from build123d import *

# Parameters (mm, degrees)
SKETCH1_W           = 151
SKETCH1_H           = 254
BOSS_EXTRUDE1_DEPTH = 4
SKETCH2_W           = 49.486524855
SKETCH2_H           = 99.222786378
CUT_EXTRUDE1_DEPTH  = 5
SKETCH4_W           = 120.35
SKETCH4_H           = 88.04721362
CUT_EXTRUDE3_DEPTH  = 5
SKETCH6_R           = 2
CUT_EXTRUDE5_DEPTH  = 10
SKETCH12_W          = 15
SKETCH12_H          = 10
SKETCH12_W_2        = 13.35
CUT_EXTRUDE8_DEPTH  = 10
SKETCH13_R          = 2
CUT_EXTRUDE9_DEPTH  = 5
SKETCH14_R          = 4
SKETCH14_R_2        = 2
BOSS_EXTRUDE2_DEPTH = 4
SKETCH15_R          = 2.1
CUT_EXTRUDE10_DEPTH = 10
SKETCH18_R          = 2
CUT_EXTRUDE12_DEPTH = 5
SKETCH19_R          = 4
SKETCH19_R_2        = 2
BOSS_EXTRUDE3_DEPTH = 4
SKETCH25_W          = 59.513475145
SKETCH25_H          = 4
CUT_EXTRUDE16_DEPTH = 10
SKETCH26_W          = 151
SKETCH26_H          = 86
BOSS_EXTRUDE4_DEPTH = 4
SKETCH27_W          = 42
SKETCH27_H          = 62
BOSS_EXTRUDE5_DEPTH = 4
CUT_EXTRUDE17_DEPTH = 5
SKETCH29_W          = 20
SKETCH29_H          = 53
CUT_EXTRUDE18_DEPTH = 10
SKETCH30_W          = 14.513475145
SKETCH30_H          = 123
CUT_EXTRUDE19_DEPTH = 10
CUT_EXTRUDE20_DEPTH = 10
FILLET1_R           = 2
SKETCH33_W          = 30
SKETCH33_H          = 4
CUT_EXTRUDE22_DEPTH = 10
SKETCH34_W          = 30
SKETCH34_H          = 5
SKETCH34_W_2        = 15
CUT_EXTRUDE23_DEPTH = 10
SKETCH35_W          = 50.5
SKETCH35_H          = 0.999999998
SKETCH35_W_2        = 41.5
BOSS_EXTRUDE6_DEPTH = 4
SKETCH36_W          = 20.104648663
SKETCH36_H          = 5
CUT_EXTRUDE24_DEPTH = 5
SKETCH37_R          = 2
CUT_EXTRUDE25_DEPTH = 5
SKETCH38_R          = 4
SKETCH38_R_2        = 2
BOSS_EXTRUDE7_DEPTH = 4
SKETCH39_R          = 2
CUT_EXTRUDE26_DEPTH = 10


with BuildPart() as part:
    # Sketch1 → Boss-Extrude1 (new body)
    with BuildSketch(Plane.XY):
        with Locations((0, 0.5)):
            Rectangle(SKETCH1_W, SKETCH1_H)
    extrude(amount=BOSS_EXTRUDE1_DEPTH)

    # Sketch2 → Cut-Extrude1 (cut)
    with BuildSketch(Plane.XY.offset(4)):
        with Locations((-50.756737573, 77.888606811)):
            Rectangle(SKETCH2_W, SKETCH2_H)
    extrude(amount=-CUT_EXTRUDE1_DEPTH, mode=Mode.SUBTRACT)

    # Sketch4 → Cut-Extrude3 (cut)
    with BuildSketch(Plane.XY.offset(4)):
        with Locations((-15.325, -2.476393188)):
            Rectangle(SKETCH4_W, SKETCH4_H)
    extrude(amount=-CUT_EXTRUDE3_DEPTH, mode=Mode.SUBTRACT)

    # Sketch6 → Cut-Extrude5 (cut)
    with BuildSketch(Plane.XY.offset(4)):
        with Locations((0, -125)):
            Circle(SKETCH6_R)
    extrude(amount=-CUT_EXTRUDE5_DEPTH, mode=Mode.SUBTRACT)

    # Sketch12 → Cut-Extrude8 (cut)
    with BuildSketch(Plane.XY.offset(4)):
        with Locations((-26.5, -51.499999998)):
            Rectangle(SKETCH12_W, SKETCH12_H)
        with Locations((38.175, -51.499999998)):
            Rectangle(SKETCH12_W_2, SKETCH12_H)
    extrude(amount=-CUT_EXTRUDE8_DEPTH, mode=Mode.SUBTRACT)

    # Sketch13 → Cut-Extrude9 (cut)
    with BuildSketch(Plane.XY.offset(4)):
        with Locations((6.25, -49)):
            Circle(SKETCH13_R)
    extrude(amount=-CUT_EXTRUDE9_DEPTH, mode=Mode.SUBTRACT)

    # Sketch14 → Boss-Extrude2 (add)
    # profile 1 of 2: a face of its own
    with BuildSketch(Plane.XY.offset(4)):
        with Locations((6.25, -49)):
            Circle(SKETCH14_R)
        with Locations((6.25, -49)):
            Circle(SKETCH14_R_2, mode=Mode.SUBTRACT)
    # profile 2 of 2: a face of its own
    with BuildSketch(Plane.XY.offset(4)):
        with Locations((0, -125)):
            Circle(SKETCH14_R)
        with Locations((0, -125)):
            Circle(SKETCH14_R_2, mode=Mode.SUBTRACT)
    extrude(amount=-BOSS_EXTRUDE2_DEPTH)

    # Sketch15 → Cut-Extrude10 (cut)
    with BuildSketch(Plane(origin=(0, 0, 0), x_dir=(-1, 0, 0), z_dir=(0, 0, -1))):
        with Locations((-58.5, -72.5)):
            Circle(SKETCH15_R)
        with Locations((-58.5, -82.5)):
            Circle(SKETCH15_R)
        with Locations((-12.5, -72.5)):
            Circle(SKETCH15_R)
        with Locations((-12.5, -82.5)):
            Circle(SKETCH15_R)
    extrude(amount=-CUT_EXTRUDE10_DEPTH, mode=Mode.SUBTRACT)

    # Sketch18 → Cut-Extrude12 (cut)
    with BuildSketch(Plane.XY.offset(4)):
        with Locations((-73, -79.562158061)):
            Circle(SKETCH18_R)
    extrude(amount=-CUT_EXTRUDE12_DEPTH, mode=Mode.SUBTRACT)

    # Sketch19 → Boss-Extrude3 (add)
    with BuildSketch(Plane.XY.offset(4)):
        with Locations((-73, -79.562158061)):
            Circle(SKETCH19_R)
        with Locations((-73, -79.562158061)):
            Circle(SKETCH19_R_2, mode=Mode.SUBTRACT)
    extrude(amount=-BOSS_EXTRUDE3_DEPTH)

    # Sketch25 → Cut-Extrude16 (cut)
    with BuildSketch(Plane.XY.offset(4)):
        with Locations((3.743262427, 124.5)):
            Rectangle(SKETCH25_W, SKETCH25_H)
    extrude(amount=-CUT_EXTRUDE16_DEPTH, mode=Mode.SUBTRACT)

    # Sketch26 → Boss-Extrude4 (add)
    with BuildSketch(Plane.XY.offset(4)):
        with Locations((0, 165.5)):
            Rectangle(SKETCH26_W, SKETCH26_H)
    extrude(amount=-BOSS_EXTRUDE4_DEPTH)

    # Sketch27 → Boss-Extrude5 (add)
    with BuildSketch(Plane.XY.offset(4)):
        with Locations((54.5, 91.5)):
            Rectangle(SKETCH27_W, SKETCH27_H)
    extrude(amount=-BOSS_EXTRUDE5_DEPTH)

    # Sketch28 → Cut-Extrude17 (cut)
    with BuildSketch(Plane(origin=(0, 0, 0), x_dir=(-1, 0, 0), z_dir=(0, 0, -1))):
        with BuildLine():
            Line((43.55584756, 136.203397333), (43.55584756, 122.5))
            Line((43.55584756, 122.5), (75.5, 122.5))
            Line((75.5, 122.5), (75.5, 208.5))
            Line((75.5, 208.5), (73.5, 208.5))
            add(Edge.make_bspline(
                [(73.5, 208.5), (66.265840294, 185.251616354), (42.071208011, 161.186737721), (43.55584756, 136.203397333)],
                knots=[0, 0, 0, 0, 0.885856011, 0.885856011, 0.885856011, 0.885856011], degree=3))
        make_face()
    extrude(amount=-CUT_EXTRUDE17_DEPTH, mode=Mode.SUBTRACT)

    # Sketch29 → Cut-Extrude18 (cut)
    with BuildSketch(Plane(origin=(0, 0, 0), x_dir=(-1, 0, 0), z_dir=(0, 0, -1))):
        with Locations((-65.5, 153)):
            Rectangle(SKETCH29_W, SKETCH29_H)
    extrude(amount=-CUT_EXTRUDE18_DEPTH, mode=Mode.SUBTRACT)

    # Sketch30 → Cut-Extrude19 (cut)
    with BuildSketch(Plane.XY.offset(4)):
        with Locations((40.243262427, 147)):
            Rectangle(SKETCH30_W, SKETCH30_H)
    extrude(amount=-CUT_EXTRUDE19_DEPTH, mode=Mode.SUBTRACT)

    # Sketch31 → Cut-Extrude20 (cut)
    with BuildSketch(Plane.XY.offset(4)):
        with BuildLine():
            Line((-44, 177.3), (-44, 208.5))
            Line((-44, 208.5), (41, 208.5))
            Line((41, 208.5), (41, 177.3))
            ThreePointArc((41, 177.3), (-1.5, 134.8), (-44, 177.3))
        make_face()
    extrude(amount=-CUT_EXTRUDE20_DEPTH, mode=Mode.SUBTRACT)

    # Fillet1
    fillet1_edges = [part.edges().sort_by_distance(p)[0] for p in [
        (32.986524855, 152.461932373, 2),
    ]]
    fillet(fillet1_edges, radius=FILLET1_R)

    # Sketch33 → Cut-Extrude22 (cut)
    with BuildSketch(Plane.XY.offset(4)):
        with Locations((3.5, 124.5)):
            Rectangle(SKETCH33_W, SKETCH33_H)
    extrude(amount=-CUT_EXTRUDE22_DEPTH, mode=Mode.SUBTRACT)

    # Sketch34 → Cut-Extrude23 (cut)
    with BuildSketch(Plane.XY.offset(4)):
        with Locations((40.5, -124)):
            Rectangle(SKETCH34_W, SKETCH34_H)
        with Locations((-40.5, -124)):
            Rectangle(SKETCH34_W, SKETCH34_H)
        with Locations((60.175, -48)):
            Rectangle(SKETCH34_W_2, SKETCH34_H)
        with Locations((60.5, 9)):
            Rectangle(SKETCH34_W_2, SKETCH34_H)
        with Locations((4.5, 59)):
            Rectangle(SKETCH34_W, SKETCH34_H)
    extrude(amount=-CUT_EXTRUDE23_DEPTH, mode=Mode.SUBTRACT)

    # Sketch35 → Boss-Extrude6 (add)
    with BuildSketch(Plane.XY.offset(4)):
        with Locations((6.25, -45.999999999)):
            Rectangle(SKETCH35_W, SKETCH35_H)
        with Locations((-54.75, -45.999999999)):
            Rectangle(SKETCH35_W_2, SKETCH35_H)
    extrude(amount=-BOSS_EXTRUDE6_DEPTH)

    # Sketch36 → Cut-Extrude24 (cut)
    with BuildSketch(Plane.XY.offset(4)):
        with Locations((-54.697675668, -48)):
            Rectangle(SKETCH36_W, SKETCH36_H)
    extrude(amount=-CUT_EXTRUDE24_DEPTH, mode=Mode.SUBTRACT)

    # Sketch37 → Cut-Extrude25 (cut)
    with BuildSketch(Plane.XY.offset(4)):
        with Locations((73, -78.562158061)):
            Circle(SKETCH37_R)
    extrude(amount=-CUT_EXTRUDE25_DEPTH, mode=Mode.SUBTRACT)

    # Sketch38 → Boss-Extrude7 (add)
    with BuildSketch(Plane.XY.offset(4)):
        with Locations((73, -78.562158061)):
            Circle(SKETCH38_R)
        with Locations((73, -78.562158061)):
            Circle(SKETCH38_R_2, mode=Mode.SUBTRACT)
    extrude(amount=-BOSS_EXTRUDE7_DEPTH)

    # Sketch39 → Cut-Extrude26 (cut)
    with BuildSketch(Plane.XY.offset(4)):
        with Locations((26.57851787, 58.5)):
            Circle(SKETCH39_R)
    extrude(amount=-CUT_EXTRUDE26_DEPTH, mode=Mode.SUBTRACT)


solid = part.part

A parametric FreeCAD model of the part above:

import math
import FreeCAD as App
import Part
import Sketcher

V = App.Vector


def edges_at(feature, points):
    """Names of the edges that pass closest to the given points."""
    edges = feature.Shape.Edges
    near = lambda p: min(range(len(edges)), key=lambda i: edges[i].distToShape(Part.Vertex(*p))[0])
    return sorted({f"Edge{near(p) + 1}" for p in points})

doc = App.newDocument("Part")
body = doc.addObject("PartDesign::Body", "Body")

# Sketch on XY plane
sketch1 = body.newObject("Sketcher::SketchObject", "Sketch")
sketch1.AttachmentSupport = (doc.getObject("XY_Plane"), [""])
sketch1.MapMode = "FlatFace"
sketch1.addGeometry(Part.LineSegment(V(-75.5, 127.5, 0), V(-75.5, -126.5, 0)), False)
sketch1.addGeometry(Part.LineSegment(V(-75.5, -126.5, 0), V(75.5, -126.5, 0)), False)
sketch1.addGeometry(Part.LineSegment(V(75.5, -126.5, 0), V(75.5, 127.5, 0)), False)
sketch1.addGeometry(Part.LineSegment(V(75.5, 127.5, 0), V(-75.5, 127.5, 0)), False)
sketch1.addConstraint(Sketcher.Constraint("Coincident", 0, 2, 1, 1))
sketch1.addConstraint(Sketcher.Constraint("Coincident", 1, 2, 2, 1))
sketch1.addConstraint(Sketcher.Constraint("Coincident", 2, 2, 3, 1))
sketch1.addConstraint(Sketcher.Constraint("Coincident", 3, 2, 0, 1))
sketch1.addConstraint(Sketcher.Constraint("Vertical", 0))
sketch1.addConstraint(Sketcher.Constraint("Horizontal", 1))
sketch1.addConstraint(Sketcher.Constraint("Vertical", 2))
sketch1.addConstraint(Sketcher.Constraint("Horizontal", 3))
sketch1.addConstraint(Sketcher.Constraint("DistanceX", 1, 1, 1, 2, 151.0))
sketch1.addConstraint(Sketcher.Constraint("DistanceY", 0, 2, 0, 1, 254.0))
sketch1.addConstraint(Sketcher.Constraint("DistanceX", 0, 2, -1, 1, 75.5))
sketch1.addConstraint(Sketcher.Constraint("DistanceY", 0, 2, -1, 1, 126.5))
pad1 = body.newObject("PartDesign::Pad", "Pad")
pad1.Profile = sketch1
pad1.Length = 4

# Sketch on XY plane
sketch2 = body.newObject("Sketcher::SketchObject", "Sketch001")
sketch2.AttachmentSupport = (doc.getObject("XY_Plane"), [""])
sketch2.MapMode = "FlatFace"
sketch2.AttachmentOffset = App.Placement(V(0, 0, 4), App.Rotation())
sketch2.addGeometry(Part.LineSegment(V(-75.5, 127.5, 0), V(-75.5, 28.277214, 0)), False)
sketch2.addGeometry(Part.LineSegment(V(-75.5, 28.277214, 0), V(-26.013475, 28.277214, 0)), False)
sketch2.addGeometry(Part.LineSegment(V(-26.013475, 28.277214, 0), V(-26.013475, 127.5, 0)), False)
sketch2.addGeometry(Part.LineSegment(V(-26.013475, 127.5, 0), V(-75.5, 127.5, 0)), False)
sketch2.addConstraint(Sketcher.Constraint("Coincident", 0, 2, 1, 1))
sketch2.addConstraint(Sketcher.Constraint("Coincident", 1, 2, 2, 1))
sketch2.addConstraint(Sketcher.Constraint("Coincident", 2, 2, 3, 1))
sketch2.addConstraint(Sketcher.Constraint("Coincident", 3, 2, 0, 1))
sketch2.addConstraint(Sketcher.Constraint("Vertical", 0))
sketch2.addConstraint(Sketcher.Constraint("Horizontal", 1))
sketch2.addConstraint(Sketcher.Constraint("Vertical", 2))
sketch2.addConstraint(Sketcher.Constraint("Horizontal", 3))
sketch2.addConstraint(Sketcher.Constraint("DistanceX", 0, 2, -1, 1, 75.5))
sketch2.addConstraint(Sketcher.Constraint("DistanceY", -1, 1, 2, 2, 127.5))
sketch2.addConstraint(Sketcher.Constraint("DistanceX", 1, 1, 1, 2, 49.486525))
sketch2.addConstraint(Sketcher.Constraint("DistanceY", 0, 2, 0, 1, 99.222786))
pocket1 = body.newObject("PartDesign::Pocket", "Pocket")
pocket1.Profile = sketch2
pocket1.Length = 5

# Sketch on XY plane
sketch3 = body.newObject("Sketcher::SketchObject", "Sketch002")
sketch3.AttachmentSupport = (doc.getObject("XY_Plane"), [""])
sketch3.MapMode = "FlatFace"
sketch3.AttachmentOffset = App.Placement(V(0, 0, 4), App.Rotation())
sketch3.addGeometry(Part.LineSegment(V(-75.5, 41.547214, 0), V(-75.5, -46.5, 0)), False)
sketch3.addGeometry(Part.LineSegment(V(-75.5, -46.5, 0), V(44.85, -46.5, 0)), False)
sketch3.addGeometry(Part.LineSegment(V(44.85, -46.5, 0), V(44.85, 41.547214, 0)), False)
sketch3.addGeometry(Part.LineSegment(V(44.85, 41.547214, 0), V(-75.5, 41.547214, 0)), False)
sketch3.addConstraint(Sketcher.Constraint("Coincident", 0, 2, 1, 1))
sketch3.addConstraint(Sketcher.Constraint("Coincident", 1, 2, 2, 1))
sketch3.addConstraint(Sketcher.Constraint("Coincident", 2, 2, 3, 1))
sketch3.addConstraint(Sketcher.Constraint("Coincident", 3, 2, 0, 1))
sketch3.addConstraint(Sketcher.Constraint("Vertical", 0))
sketch3.addConstraint(Sketcher.Constraint("Horizontal", 1))
sketch3.addConstraint(Sketcher.Constraint("Vertical", 2))
sketch3.addConstraint(Sketcher.Constraint("Horizontal", 3))
sketch3.addConstraint(Sketcher.Constraint("DistanceX", 1, 1, 1, 2, 120.35))
sketch3.addConstraint(Sketcher.Constraint("DistanceX", 0, 2, -1, 1, 75.5))
sketch3.addConstraint(Sketcher.Constraint("DistanceY", 0, 2, -1, 1, 46.5))
sketch3.addConstraint(Sketcher.Constraint("DistanceY", 0, 2, 0, 1, 88.047214))
pocket2 = body.newObject("PartDesign::Pocket", "Pocket001")
pocket2.Profile = sketch3
pocket2.Length = 5

# Sketch on XY plane
sketch4 = body.newObject("Sketcher::SketchObject", "Sketch003")
sketch4.AttachmentSupport = (doc.getObject("XY_Plane"), [""])
sketch4.MapMode = "FlatFace"
sketch4.AttachmentOffset = App.Placement(V(0, 0, 4), App.Rotation())
sketch4.addGeometry(Part.Circle(V(0, -125, 0), V(0, 0, 1), 2), False)
sketch4.addConstraint(Sketcher.Constraint("PointOnObject", 0, 3, -2))
sketch4.addConstraint(Sketcher.Constraint("Diameter", 0, 4.0))
sketch4.addConstraint(Sketcher.Constraint("DistanceY", 0, 3, -1, 1, 125.0))
pocket3 = body.newObject("PartDesign::Pocket", "Pocket002")
pocket3.Profile = sketch4
pocket3.Length = 10

# Sketch on XY plane
sketch5 = body.newObject("Sketcher::SketchObject", "Sketch004")
sketch5.AttachmentSupport = (doc.getObject("XY_Plane"), [""])
sketch5.MapMode = "FlatFace"
sketch5.AttachmentOffset = App.Placement(V(0, 0, 4), App.Rotation())
sketch5.addGeometry(Part.LineSegment(V(-34, -46.5, 0), V(-34, -56.5, 0)), False)
sketch5.addGeometry(Part.LineSegment(V(-34, -56.5, 0), V(-19, -56.5, 0)), False)
sketch5.addGeometry(Part.LineSegment(V(-19, -56.5, 0), V(-19, -46.5, 0)), False)
sketch5.addGeometry(Part.LineSegment(V(-19, -46.5, 0), V(-34, -46.5, 0)), False)
sketch5.addGeometry(Part.LineSegment(V(31.5, -46.5, 0), V(31.5, -56.5, 0)), False)
sketch5.addGeometry(Part.LineSegment(V(31.5, -56.5, 0), V(44.85, -56.5, 0)), False)
sketch5.addGeometry(Part.LineSegment(V(44.85, -56.5, 0), V(44.85, -46.5, 0)), False)
sketch5.addGeometry(Part.LineSegment(V(44.85, -46.5, 0), V(31.5, -46.5, 0)), False)
sketch5.addConstraint(Sketcher.Constraint("Coincident", 0, 2, 1, 1))
sketch5.addConstraint(Sketcher.Constraint("Coincident", 1, 2, 2, 1))
sketch5.addConstraint(Sketcher.Constraint("Coincident", 2, 2, 3, 1))
sketch5.addConstraint(Sketcher.Constraint("Coincident", 3, 2, 0, 1))
sketch5.addConstraint(Sketcher.Constraint("Coincident", 4, 2, 5, 1))
sketch5.addConstraint(Sketcher.Constraint("Coincident", 5, 2, 6, 1))
sketch5.addConstraint(Sketcher.Constraint("Coincident", 6, 2, 7, 1))
sketch5.addConstraint(Sketcher.Constraint("Coincident", 7, 2, 4, 1))
sketch5.addConstraint(Sketcher.Constraint("Vertical", 0))
sketch5.addConstraint(Sketcher.Constraint("Horizontal", 1))
sketch5.addConstraint(Sketcher.Constraint("Vertical", 2))
sketch5.addConstraint(Sketcher.Constraint("Horizontal", 3))
sketch5.addConstraint(Sketcher.Constraint("Vertical", 4))
sketch5.addConstraint(Sketcher.Constraint("Horizontal", 5))
sketch5.addConstraint(Sketcher.Constraint("Vertical", 6))
sketch5.addConstraint(Sketcher.Constraint("Horizontal", 7))
sketch5.addConstraint(Sketcher.Constraint("Horizontal", 1, 2, 4, 2))
sketch5.addConstraint(Sketcher.Constraint("Horizontal", 3, 2, 6, 2))
sketch5.addConstraint(Sketcher.Constraint("DistanceX", 1, 1, 1, 2, 15.0))
sketch5.addConstraint(Sketcher.Constraint("DistanceY", 0, 2, 0, 1, 10.0))
sketch5.addConstraint(Sketcher.Constraint("DistanceX", 0, 2, -1, 1, 34.0))
sketch5.addConstraint(Sketcher.Constraint("DistanceX", 5, 1, 5, 2, 13.35))
sketch5.addConstraint(Sketcher.Constraint("DistanceY", 0, 2, -1, 1, 56.5))
sketch5.addConstraint(Sketcher.Constraint("DistanceX", -1, 1, 4, 2, 31.5))
pocket4 = body.newObject("PartDesign::Pocket", "Pocket003")
pocket4.Profile = sketch5
pocket4.Length = 10

# Sketch on XY plane
sketch6 = body.newObject("Sketcher::SketchObject", "Sketch005")
sketch6.AttachmentSupport = (doc.getObject("XY_Plane"), [""])
sketch6.MapMode = "FlatFace"
sketch6.AttachmentOffset = App.Placement(V(0, 0, 4), App.Rotation())
sketch6.addGeometry(Part.Circle(V(6.25, -49, 0), V(0, 0, 1), 2), False)
sketch6.addConstraint(Sketcher.Constraint("Diameter", 0, 4.0))
sketch6.addConstraint(Sketcher.Constraint("DistanceY", 0, 3, -1, 1, 49.0))
sketch6.addConstraint(Sketcher.Constraint("DistanceX", -1, 1, 0, 3, 6.25))
pocket5 = body.newObject("PartDesign::Pocket", "Pocket004")
pocket5.Profile = sketch6
pocket5.Length = 5

# Sketch on XY plane
sketch7 = body.newObject("Sketcher::SketchObject", "Sketch006")
sketch7.AttachmentSupport = (doc.getObject("XY_Plane"), [""])
sketch7.MapMode = "FlatFace"
sketch7.AttachmentOffset = App.Placement(V(0, 0, 4), App.Rotation())
sketch7.addGeometry(Part.Circle(V(6.25, -49, 0), V(0, 0, 1), 4), False)
sketch7.addGeometry(Part.Circle(V(6.25, -49, 0), V(0, 0, 1), 2), False)
sketch7.addGeometry(Part.Circle(V(0, -125, 0), V(0, 0, 1), 4), False)
sketch7.addGeometry(Part.Circle(V(0, -125, 0), V(0, 0, 1), 2), False)
sketch7.addConstraint(Sketcher.Constraint("Coincident", 1, 3, 0, 3))
sketch7.addConstraint(Sketcher.Constraint("Coincident", 3, 3, 2, 3))
sketch7.addConstraint(Sketcher.Constraint("Equal", 0, 2))
sketch7.addConstraint(Sketcher.Constraint("Equal", 1, 3))
sketch7.addConstraint(Sketcher.Constraint("PointOnObject", 2, 3, -2))
sketch7.addConstraint(Sketcher.Constraint("Diameter", 0, 8.0))
sketch7.addConstraint(Sketcher.Constraint("Diameter", 1, 4.0))
sketch7.addConstraint(Sketcher.Constraint("DistanceY", 0, 3, -1, 1, 49.0))
sketch7.addConstraint(Sketcher.Constraint("DistanceY", 2, 3, -1, 1, 125.0))
sketch7.addConstraint(Sketcher.Constraint("DistanceX", -1, 1, 0, 3, 6.25))
pad2 = body.newObject("PartDesign::Pad", "Pad001")
pad2.Profile = sketch7
pad2.Length = 4
pad2.Reversed = True

# Sketch on XY plane
sketch8 = body.newObject("Sketcher::SketchObject", "Sketch007")
sketch8.AttachmentSupport = (doc.getObject("XY_Plane"), [""])
sketch8.MapMode = "FlatFace"
sketch8.addGeometry(Part.Circle(V(58.5, -72.5, 0), V(0, 0, 1), 2.1), False)
sketch8.addGeometry(Part.Circle(V(58.5, -82.5, 0), V(0, 0, 1), 2.1), False)
sketch8.addGeometry(Part.Circle(V(12.5, -72.5, 0), V(0, 0, 1), 2.1), False)
sketch8.addGeometry(Part.Circle(V(12.5, -82.5, 0), V(0, 0, 1), 2.1), False)
sketch8.addConstraint(Sketcher.Constraint("Equal", 0, 1))
sketch8.addConstraint(Sketcher.Constraint("Equal", 1, 2))
sketch8.addConstraint(Sketcher.Constraint("Equal", 2, 3))
sketch8.addConstraint(Sketcher.Constraint("Horizontal", 0, 3, 2, 3))
sketch8.addConstraint(Sketcher.Constraint("Horizontal", 1, 3, 3, 3))
sketch8.addConstraint(Sketcher.Constraint("Vertical", 0, 3, 1, 3))
sketch8.addConstraint(Sketcher.Constraint("Vertical", 2, 3, 3, 3))
sketch8.addConstraint(Sketcher.Constraint("Diameter", 0, 4.2))
sketch8.addConstraint(Sketcher.Constraint("DistanceY", 1, 3, 0, 3, 10.0))
sketch8.addConstraint(Sketcher.Constraint("DistanceX", 2, 3, 0, 3, 46.0))
sketch8.addConstraint(Sketcher.Constraint("DistanceX", -1, 1, 0, 3, 58.5))
sketch8.addConstraint(Sketcher.Constraint("DistanceY", 0, 3, -1, 1, 72.5))
pocket6 = body.newObject("PartDesign::Pocket", "Pocket005")
pocket6.Profile = sketch8
pocket6.Length = 10
pocket6.Reversed = True

# Sketch on XY plane
sketch9 = body.newObject("Sketcher::SketchObject", "Sketch008")
sketch9.AttachmentSupport = (doc.getObject("XY_Plane"), [""])
sketch9.MapMode = "FlatFace"
sketch9.AttachmentOffset = App.Placement(V(0, 0, 4), App.Rotation())
sketch9.addGeometry(Part.Circle(V(-73, -79.562158, 0), V(0, 0, 1), 2), False)
sketch9.addConstraint(Sketcher.Constraint("Diameter", 0, 4.0))
sketch9.addConstraint(Sketcher.Constraint("DistanceX", 0, 3, -1, 1, 73.0))
sketch9.addConstraint(Sketcher.Constraint("DistanceY", 0, 3, -1, 1, 79.562158))
pocket7 = body.newObject("PartDesign::Pocket", "Pocket006")
pocket7.Profile = sketch9
pocket7.Length = 5

# Sketch on XY plane
sketch10 = body.newObject("Sketcher::SketchObject", "Sketch009")
sketch10.AttachmentSupport = (doc.getObject("XY_Plane"), [""])
sketch10.MapMode = "FlatFace"
sketch10.AttachmentOffset = App.Placement(V(0, 0, 4), App.Rotation())
sketch10.addGeometry(Part.Circle(V(-73, -79.562158, 0), V(0, 0, 1), 4), False)
sketch10.addGeometry(Part.Circle(V(-73, -79.562158, 0), V(0, 0, 1), 2), False)
sketch10.addConstraint(Sketcher.Constraint("Coincident", 1, 3, 0, 3))
sketch10.addConstraint(Sketcher.Constraint("Diameter", 0, 8.0))
sketch10.addConstraint(Sketcher.Constraint("Diameter", 1, 4.0))
sketch10.addConstraint(Sketcher.Constraint("DistanceX", 0, 3, -1, 1, 73.0))
sketch10.addConstraint(Sketcher.Constraint("DistanceY", 0, 3, -1, 1, 79.562158))
pad3 = body.newObject("PartDesign::Pad", "Pad002")
pad3.Profile = sketch10
pad3.Length = 4
pad3.Reversed = True

# Sketch on XY plane
sketch11 = body.newObject("Sketcher::SketchObject", "Sketch010")
sketch11.AttachmentSupport = (doc.getObject("XY_Plane"), [""])
sketch11.MapMode = "FlatFace"
sketch11.AttachmentOffset = App.Placement(V(0, 0, 4), App.Rotation())
sketch11.addGeometry(Part.LineSegment(V(-26.013475, 126.5, 0), V(-26.013475, 122.5, 0)), False)
sketch11.addGeometry(Part.LineSegment(V(-26.013475, 122.5, 0), V(33.5, 122.5, 0)), False)
sketch11.addGeometry(Part.LineSegment(V(33.5, 122.5, 0), V(33.5, 126.5, 0)), False)
sketch11.addGeometry(Part.LineSegment(V(33.5, 126.5, 0), V(-26.013475, 126.5, 0)), False)
sketch11.addConstraint(Sketcher.Constraint("Coincident", 0, 2, 1, 1))
sketch11.addConstraint(Sketcher.Constraint("Coincident", 1, 2, 2, 1))
sketch11.addConstraint(Sketcher.Constraint("Coincident", 2, 2, 3, 1))
sketch11.addConstraint(Sketcher.Constraint("Coincident", 3, 2, 0, 1))
sketch11.addConstraint(Sketcher.Constraint("Vertical", 0))
sketch11.addConstraint(Sketcher.Constraint("Horizontal", 1))
sketch11.addConstraint(Sketcher.Constraint("Vertical", 2))
sketch11.addConstraint(Sketcher.Constraint("Horizontal", 3))
sketch11.addConstraint(Sketcher.Constraint("DistanceY", 0, 2, 0, 1, 4.0))
sketch11.addConstraint(Sketcher.Constraint("DistanceY", -1, 1, 0, 2, 122.5))
sketch11.addConstraint(Sketcher.Constraint("DistanceX", -1, 1, 1, 2, 33.5))
sketch11.addConstraint(Sketcher.Constraint("DistanceX", 1, 1, 1, 2, 59.513475))
pocket8 = body.newObject("PartDesign::Pocket", "Pocket007")
pocket8.Profile = sketch11
pocket8.Length = 10

# Sketch on XY plane
sketch12 = body.newObject("Sketcher::SketchObject", "Sketch011")
sketch12.AttachmentSupport = (doc.getObject("XY_Plane"), [""])
sketch12.MapMode = "FlatFace"
sketch12.AttachmentOffset = App.Placement(V(0, 0, 4), App.Rotation())
sketch12.addGeometry(Part.LineSegment(V(-75.5, 208.5, 0), V(-75.5, 122.5, 0)), False)
sketch12.addGeometry(Part.LineSegment(V(-75.5, 122.5, 0), V(75.5, 122.5, 0)), False)
sketch12.addGeometry(Part.LineSegment(V(75.5, 122.5, 0), V(75.5, 208.5, 0)), False)
sketch12.addGeometry(Part.LineSegment(V(75.5, 208.5, 0), V(-75.5, 208.5, 0)), False)
sketch12.addConstraint(Sketcher.Constraint("Coincident", 0, 2, 1, 1))
sketch12.addConstraint(Sketcher.Constraint("Coincident", 1, 2, 2, 1))
sketch12.addConstraint(Sketcher.Constraint("Coincident", 2, 2, 3, 1))
sketch12.addConstraint(Sketcher.Constraint("Coincident", 3, 2, 0, 1))
sketch12.addConstraint(Sketcher.Constraint("Vertical", 0))
sketch12.addConstraint(Sketcher.Constraint("Horizontal", 1))
sketch12.addConstraint(Sketcher.Constraint("Vertical", 2))
sketch12.addConstraint(Sketcher.Constraint("Horizontal", 3))
sketch12.addConstraint(Sketcher.Constraint("DistanceX", 1, 1, 1, 2, 151.0))
sketch12.addConstraint(Sketcher.Constraint("DistanceY", 0, 2, 0, 1, 86.0))
sketch12.addConstraint(Sketcher.Constraint("DistanceX", 0, 2, -1, 1, 75.5))
sketch12.addConstraint(Sketcher.Constraint("DistanceY", -1, 1, 0, 2, 122.5))
pad4 = body.newObject("PartDesign::Pad", "Pad003")
pad4.Profile = sketch12
pad4.Length = 4
pad4.Reversed = True

# Sketch on XY plane
sketch13 = body.newObject("Sketcher::SketchObject", "Sketch012")
sketch13.AttachmentSupport = (doc.getObject("XY_Plane"), [""])
sketch13.MapMode = "FlatFace"
sketch13.AttachmentOffset = App.Placement(V(0, 0, 4), App.Rotation())
sketch13.addGeometry(Part.LineSegment(V(33.5, 122.5, 0), V(33.5, 60.5, 0)), False)
sketch13.addGeometry(Part.LineSegment(V(33.5, 60.5, 0), V(75.5, 60.5, 0)), False)
sketch13.addGeometry(Part.LineSegment(V(75.5, 60.5, 0), V(75.5, 122.5, 0)), False)
sketch13.addGeometry(Part.LineSegment(V(75.5, 122.5, 0), V(33.5, 122.5, 0)), False)
sketch13.addConstraint(Sketcher.Constraint("Coincident", 0, 2, 1, 1))
sketch13.addConstraint(Sketcher.Constraint("Coincident", 1, 2, 2, 1))
sketch13.addConstraint(Sketcher.Constraint("Coincident", 2, 2, 3, 1))
sketch13.addConstraint(Sketcher.Constraint("Coincident", 3, 2, 0, 1))
sketch13.addConstraint(Sketcher.Constraint("Vertical", 0))
sketch13.addConstraint(Sketcher.Constraint("Horizontal", 1))
sketch13.addConstraint(Sketcher.Constraint("Vertical", 2))
sketch13.addConstraint(Sketcher.Constraint("Horizontal", 3))
sketch13.addConstraint(Sketcher.Constraint("DistanceX", 1, 1, 1, 2, 42.0))
sketch13.addConstraint(Sketcher.Constraint("DistanceY", 0, 2, 0, 1, 62.0))
sketch13.addConstraint(Sketcher.Constraint("DistanceX", -1, 1, 0, 2, 33.5))
sketch13.addConstraint(Sketcher.Constraint("DistanceY", -1, 1, 0, 2, 60.5))
pad5 = body.newObject("PartDesign::Pad", "Pad004")
pad5.Profile = sketch13
pad5.Length = 4
pad5.Reversed = True

# Sketch on XY plane
sketch14 = body.newObject("Sketcher::SketchObject", "Sketch013")
sketch14.AttachmentSupport = (doc.getObject("XY_Plane"), [""])
sketch14.MapMode = "FlatFace"
sketch14.addGeometry(Part.LineSegment(V(-43.555848, 136.203397, 0), V(-43.555848, 122.5, 0)), False)
sketch14.addGeometry(Part.LineSegment(V(-43.555848, 122.5, 0), V(-75.5, 122.5, 0)), False)
sketch14.addGeometry(Part.LineSegment(V(-75.5, 122.5, 0), V(-75.5, 208.5, 0)), False)
sketch14.addGeometry(Part.LineSegment(V(-75.5, 208.5, 0), V(-73.5, 208.5, 0)), False)
sketch14.addGeometry(Part.BSplineCurve([V(-73.5, 208.5, 0), V(-66.26584, 185.251616, 0), V(-42.071208, 161.186738, 0), V(-43.555848, 136.203397, 0)], [4, 4], [0, 0.885856011], False, 3, [1, 1, 1, 1], False), False)
sketch14.addConstraint(Sketcher.Constraint("Block", 4))
sketch14.addConstraint(Sketcher.Constraint("Coincident", 0, 2, 1, 1))
sketch14.addConstraint(Sketcher.Constraint("Coincident", 1, 2, 2, 1))
sketch14.addConstraint(Sketcher.Constraint("Coincident", 2, 2, 3, 1))
sketch14.addConstraint(Sketcher.Constraint("Coincident", 3, 2, 4, 1))
sketch14.addConstraint(Sketcher.Constraint("Coincident", 4, 2, 0, 1))
sketch14.addConstraint(Sketcher.Constraint("Vertical", 0))
sketch14.addConstraint(Sketcher.Constraint("Horizontal", 1))
sketch14.addConstraint(Sketcher.Constraint("Vertical", 2))
sketch14.addConstraint(Sketcher.Constraint("Horizontal", 3))
sketch14.addConstraint(Sketcher.Constraint("DistanceX", 3, 1, 3, 2, 2.0))
sketch14.addConstraint(Sketcher.Constraint("DistanceY", 2, 1, 2, 2, 86.0))
pocket9 = body.newObject("PartDesign::Pocket", "Pocket008")
pocket9.Profile = sketch14
pocket9.Length = 5
pocket9.Reversed = True

# Sketch on XY plane
sketch15 = body.newObject("Sketcher::SketchObject", "Sketch014")
sketch15.AttachmentSupport = (doc.getObject("XY_Plane"), [""])
sketch15.MapMode = "FlatFace"
sketch15.addGeometry(Part.LineSegment(V(75.5, 179.5, 0), V(75.5, 126.5, 0)), False)
sketch15.addGeometry(Part.LineSegment(V(75.5, 126.5, 0), V(55.5, 126.5, 0)), False)
sketch15.addGeometry(Part.LineSegment(V(55.5, 126.5, 0), V(55.5, 179.5, 0)), False)
sketch15.addGeometry(Part.LineSegment(V(55.5, 179.5, 0), V(75.5, 179.5, 0)), False)
sketch15.addConstraint(Sketcher.Constraint("Coincident", 0, 2, 1, 1))
sketch15.addConstraint(Sketcher.Constraint("Coincident", 1, 2, 2, 1))
sketch15.addConstraint(Sketcher.Constraint("Coincident", 2, 2, 3, 1))
sketch15.addConstraint(Sketcher.Constraint("Coincident", 3, 2, 0, 1))
sketch15.addConstraint(Sketcher.Constraint("Vertical", 0))
sketch15.addConstraint(Sketcher.Constraint("Horizontal", 1))
sketch15.addConstraint(Sketcher.Constraint("Vertical", 2))
sketch15.addConstraint(Sketcher.Constraint("Horizontal", 3))
sketch15.addConstraint(Sketcher.Constraint("DistanceX", 1, 2, 1, 1, 20.0))
sketch15.addConstraint(Sketcher.Constraint("DistanceY", 0, 2, 0, 1, 53.0))
sketch15.addConstraint(Sketcher.Constraint("DistanceX", -1, 1, 0, 2, 75.5))
sketch15.addConstraint(Sketcher.Constraint("DistanceY", -1, 1, 0, 2, 126.5))
pocket10 = body.newObject("PartDesign::Pocket", "Pocket009")
pocket10.Profile = sketch15
pocket10.Length = 10
pocket10.Reversed = True

# Sketch on XY plane
sketch16 = body.newObject("Sketcher::SketchObject", "Sketch015")
sketch16.AttachmentSupport = (doc.getObject("XY_Plane"), [""])
sketch16.MapMode = "FlatFace"
sketch16.AttachmentOffset = App.Placement(V(0, 0, 4), App.Rotation())
sketch16.addGeometry(Part.LineSegment(V(32.986525, 208.5, 0), V(32.986525, 85.5, 0)), False)
sketch16.addGeometry(Part.LineSegment(V(32.986525, 85.5, 0), V(47.5, 85.5, 0)), False)
sketch16.addGeometry(Part.LineSegment(V(47.5, 85.5, 0), V(47.5, 208.5, 0)), False)
sketch16.addGeometry(Part.LineSegment(V(47.5, 208.5, 0), V(32.986525, 208.5, 0)), False)
sketch16.addConstraint(Sketcher.Constraint("Coincident", 0, 2, 1, 1))
sketch16.addConstraint(Sketcher.Constraint("Coincident", 1, 2, 2, 1))
sketch16.addConstraint(Sketcher.Constraint("Coincident", 2, 2, 3, 1))
sketch16.addConstraint(Sketcher.Constraint("Coincident", 3, 2, 0, 1))
sketch16.addConstraint(Sketcher.Constraint("Vertical", 0))
sketch16.addConstraint(Sketcher.Constraint("Horizontal", 1))
sketch16.addConstraint(Sketcher.Constraint("Vertical", 2))
sketch16.addConstraint(Sketcher.Constraint("Horizontal", 3))
sketch16.addConstraint(Sketcher.Constraint("DistanceY", 0, 2, 0, 1, 123.0))
sketch16.addConstraint(Sketcher.Constraint("DistanceY", -1, 1, 0, 2, 85.5))
sketch16.addConstraint(Sketcher.Constraint("DistanceX", -1, 1, 1, 2, 47.5))
sketch16.addConstraint(Sketcher.Constraint("DistanceX", 1, 1, 1, 2, 14.513475))
pocket11 = body.newObject("PartDesign::Pocket", "Pocket010")
pocket11.Profile = sketch16
pocket11.Length = 10

# Sketch on XY plane
sketch17 = body.newObject("Sketcher::SketchObject", "Sketch016")
sketch17.AttachmentSupport = (doc.getObject("XY_Plane"), [""])
sketch17.MapMode = "FlatFace"
sketch17.AttachmentOffset = App.Placement(V(0, 0, 4), App.Rotation())
sketch17.addGeometry(Part.LineSegment(V(-44, 208.5, 0), V(-44, 177.3, 0)), False)
sketch17.addGeometry(Part.ArcOfCircle(Part.Circle(V(-1.5, 177.3, 0), V(0, 0, 1), 42.5), math.radians(180), math.radians(360)), False)
sketch17.addGeometry(Part.LineSegment(V(41, 177.3, 0), V(41, 208.5, 0)), False)
sketch17.addGeometry(Part.LineSegment(V(41, 208.5, 0), V(-44, 208.5, 0)), False)
sketch17.addConstraint(Sketcher.Constraint("Tangent", 0, 2, 1, 1))
sketch17.addConstraint(Sketcher.Constraint("Tangent", 1, 2, 2, 1))
sketch17.addConstraint(Sketcher.Constraint("Coincident", 2, 2, 3, 1))
sketch17.addConstraint(Sketcher.Constraint("Coincident", 3, 2, 0, 1))
sketch17.addConstraint(Sketcher.Constraint("Vertical", 0))
sketch17.addConstraint(Sketcher.Constraint("Vertical", 2))
sketch17.addConstraint(Sketcher.Constraint("Horizontal", 3))
sketch17.addConstraint(Sketcher.Constraint("Radius", 1, 42.5))
sketch17.addConstraint(Sketcher.Constraint("DistanceY", 0, 2, 0, 1, 31.2))
sketch17.addConstraint(Sketcher.Constraint("DistanceX", 0, 2, -1, 1, 44.0))
sketch17.addConstraint(Sketcher.Constraint("DistanceY", -1, 1, 1, 3, 177.3))
pocket12 = body.newObject("PartDesign::Pocket", "Pocket011")
pocket12.Profile = sketch17
pocket12.Length = 10
doc.recompute()

fillet = body.newObject("PartDesign::Fillet", "Fillet")
fillet.Base = (pocket12, edges_at(pocket12, [(32.987, 152.462, 2)]))
fillet.Radius = 2

# Sketch on XY plane
sketch18 = body.newObject("Sketcher::SketchObject", "Sketch017")
sketch18.AttachmentSupport = (doc.getObject("XY_Plane"), [""])
sketch18.MapMode = "FlatFace"
sketch18.AttachmentOffset = App.Placement(V(0, 0, 4), App.Rotation())
sketch18.addGeometry(Part.LineSegment(V(-11.5, 126.5, 0), V(-11.5, 122.5, 0)), False)
sketch18.addGeometry(Part.LineSegment(V(-11.5, 122.5, 0), V(18.5, 122.5, 0)), False)
sketch18.addGeometry(Part.LineSegment(V(18.5, 122.5, 0), V(18.5, 126.5, 0)), False)
sketch18.addGeometry(Part.LineSegment(V(18.5, 126.5, 0), V(-11.5, 126.5, 0)), False)
sketch18.addConstraint(Sketcher.Constraint("Coincident", 0, 2, 1, 1))
sketch18.addConstraint(Sketcher.Constraint("Coincident", 1, 2, 2, 1))
sketch18.addConstraint(Sketcher.Constraint("Coincident", 2, 2, 3, 1))
sketch18.addConstraint(Sketcher.Constraint("Coincident", 3, 2, 0, 1))
sketch18.addConstraint(Sketcher.Constraint("Vertical", 0))
sketch18.addConstraint(Sketcher.Constraint("Horizontal", 1))
sketch18.addConstraint(Sketcher.Constraint("Vertical", 2))
sketch18.addConstraint(Sketcher.Constraint("Horizontal", 3))
sketch18.addConstraint(Sketcher.Constraint("DistanceX", 1, 1, 1, 2, 30.0))
sketch18.addConstraint(Sketcher.Constraint("DistanceY", 0, 2, 0, 1, 4.0))
sketch18.addConstraint(Sketcher.Constraint("DistanceX", 0, 2, -1, 1, 11.5))
sketch18.addConstraint(Sketcher.Constraint("DistanceY", -1, 1, 0, 2, 122.5))
pocket13 = body.newObject("PartDesign::Pocket", "Pocket012")
pocket13.Profile = sketch18
pocket13.Length = 10

# Sketch on XY plane
sketch19 = body.newObject("Sketcher::SketchObject", "Sketch018")
sketch19.AttachmentSupport = (doc.getObject("XY_Plane"), [""])
sketch19.MapMode = "FlatFace"
sketch19.AttachmentOffset = App.Placement(V(0, 0, 4), App.Rotation())
sketch19.addGeometry(Part.LineSegment(V(25.5, -121.5, 0), V(25.5, -126.5, 0)), False)
sketch19.addGeometry(Part.LineSegment(V(25.5, -126.5, 0), V(55.5, -126.5, 0)), False)
sketch19.addGeometry(Part.LineSegment(V(55.5, -126.5, 0), V(55.5, -121.5, 0)), False)
sketch19.addGeometry(Part.LineSegment(V(55.5, -121.5, 0), V(25.5, -121.5, 0)), False)
sketch19.addGeometry(Part.LineSegment(V(-55.5, -121.5, 0), V(-55.5, -126.5, 0)), False)
sketch19.addGeometry(Part.LineSegment(V(-55.5, -126.5, 0), V(-25.5, -126.5, 0)), False)
sketch19.addGeometry(Part.LineSegment(V(-25.5, -126.5, 0), V(-25.5, -121.5, 0)), False)
sketch19.addGeometry(Part.LineSegment(V(-25.5, -121.5, 0), V(-55.5, -121.5, 0)), False)
sketch19.addGeometry(Part.LineSegment(V(52.675, -45.5, 0), V(52.675, -50.5, 0)), False)
sketch19.addGeometry(Part.LineSegment(V(52.675, -50.5, 0), V(67.675, -50.5, 0)), False)
sketch19.addGeometry(Part.LineSegment(V(67.675, -50.5, 0), V(67.675, -45.5, 0)), False)
sketch19.addGeometry(Part.LineSegment(V(67.675, -45.5, 0), V(52.675, -45.5, 0)), False)
sketch19.addGeometry(Part.LineSegment(V(53, 11.5, 0), V(53, 6.5, 0)), False)
sketch19.addGeometry(Part.LineSegment(V(53, 6.5, 0), V(68, 6.5, 0)), False)
sketch19.addGeometry(Part.LineSegment(V(68, 6.5, 0), V(68, 11.5, 0)), False)
sketch19.addGeometry(Part.LineSegment(V(68, 11.5, 0), V(53, 11.5, 0)), False)
sketch19.addGeometry(Part.LineSegment(V(-10.5, 61.5, 0), V(-10.5, 56.5, 0)), False)
sketch19.addGeometry(Part.LineSegment(V(-10.5, 56.5, 0), V(19.5, 56.5, 0)), False)
sketch19.addGeometry(Part.LineSegment(V(19.5, 56.5, 0), V(19.5, 61.5, 0)), False)
sketch19.addGeometry(Part.LineSegment(V(19.5, 61.5, 0), V(-10.5, 61.5, 0)), False)
sketch19.addConstraint(Sketcher.Constraint("Coincident", 0, 2, 1, 1))
sketch19.addConstraint(Sketcher.Constraint("Coincident", 1, 2, 2, 1))
sketch19.addConstraint(Sketcher.Constraint("Coincident", 2, 2, 3, 1))
sketch19.addConstraint(Sketcher.Constraint("Coincident", 3, 2, 0, 1))
sketch19.addConstraint(Sketcher.Constraint("Coincident", 4, 2, 5, 1))
sketch19.addConstraint(Sketcher.Constraint("Coincident", 5, 2, 6, 1))
sketch19.addConstraint(Sketcher.Constraint("Coincident", 6, 2, 7, 1))
sketch19.addConstraint(Sketcher.Constraint("Coincident", 7, 2, 4, 1))
sketch19.addConstraint(Sketcher.Constraint("Coincident", 8, 2, 9, 1))
sketch19.addConstraint(Sketcher.Constraint("Coincident", 9, 2, 10, 1))
sketch19.addConstraint(Sketcher.Constraint("Coincident", 10, 2, 11, 1))
sketch19.addConstraint(Sketcher.Constraint("Coincident", 11, 2, 8, 1))
sketch19.addConstraint(Sketcher.Constraint("Coincident", 12, 2, 13, 1))
sketch19.addConstraint(Sketcher.Constraint("Coincident", 13, 2, 14, 1))
sketch19.addConstraint(Sketcher.Constraint("Coincident", 14, 2, 15, 1))
sketch19.addConstraint(Sketcher.Constraint("Coincident", 15, 2, 12, 1))
sketch19.addConstraint(Sketcher.Constraint("Coincident", 16, 2, 17, 1))
sketch19.addConstraint(Sketcher.Constraint("Coincident", 17, 2, 18, 1))
sketch19.addConstraint(Sketcher.Constraint("Coincident", 18, 2, 19, 1))
sketch19.addConstraint(Sketcher.Constraint("Coincident", 19, 2, 16, 1))
sketch19.addConstraint(Sketcher.Constraint("Vertical", 0))
sketch19.addConstraint(Sketcher.Constraint("Horizontal", 1))
sketch19.addConstraint(Sketcher.Constraint("Vertical", 2))
sketch19.addConstraint(Sketcher.Constraint("Horizontal", 3))
sketch19.addConstraint(Sketcher.Constraint("Vertical", 4))
sketch19.addConstraint(Sketcher.Constraint("Horizontal", 5))
sketch19.addConstraint(Sketcher.Constraint("Vertical", 6))
sketch19.addConstraint(Sketcher.Constraint("Horizontal", 7))
sketch19.addConstraint(Sketcher.Constraint("Vertical", 8))
sketch19.addConstraint(Sketcher.Constraint("Horizontal", 9))
sketch19.addConstraint(Sketcher.Constraint("Vertical", 10))
sketch19.addConstraint(Sketcher.Constraint("Horizontal", 11))
sketch19.addConstraint(Sketcher.Constraint("Vertical", 12))
sketch19.addConstraint(Sketcher.Constraint("Horizontal", 13))
sketch19.addConstraint(Sketcher.Constraint("Vertical", 14))
sketch19.addConstraint(Sketcher.Constraint("Horizontal", 15))
sketch19.addConstraint(Sketcher.Constraint("Vertical", 16))
sketch19.addConstraint(Sketcher.Constraint("Horizontal", 17))
sketch19.addConstraint(Sketcher.Constraint("Vertical", 18))
sketch19.addConstraint(Sketcher.Constraint("Horizontal", 19))
sketch19.addConstraint(Sketcher.Constraint("Symmetric", 1, 2, 4, 2, -2))
sketch19.addConstraint(Sketcher.Constraint("Symmetric", 3, 2, 6, 2, -2))
sketch19.addConstraint(Sketcher.Constraint("Equal", 11, 13))
sketch19.addConstraint(Sketcher.Constraint("Equal", 7, 17))
sketch19.addConstraint(Sketcher.Constraint("Equal", 6, 8))
sketch19.addConstraint(Sketcher.Constraint("Equal", 10, 12))
sketch19.addConstraint(Sketcher.Constraint("Equal", 14, 16))
sketch19.addConstraint(Sketcher.Constraint("DistanceX", 1, 1, 1, 2, 30.0))
sketch19.addConstraint(Sketcher.Constraint("DistanceX", 9, 1, 9, 2, 15.0))
sketch19.addConstraint(Sketcher.Constraint("DistanceY", 0, 2, 0, 1, 5.0))
sketch19.addConstraint(Sketcher.Constraint("DistanceX", -1, 1, 12, 2, 53.0))
sketch19.addConstraint(Sketcher.Constraint("DistanceX", 4, 2, 0, 2, 81.0))
sketch19.addConstraint(Sketcher.Constraint("DistanceY", 2, 2, 8, 2, 71.0))
sketch19.addConstraint(Sketcher.Constraint("DistanceY", 11, 2, 12, 2, 52.0))
sketch19.addConstraint(Sketcher.Constraint("DistanceY", 15, 2, 16, 2, 45.0))
sketch19.addConstraint(Sketcher.Constraint("DistanceY", 0, 2, -1, 1, 126.5))
sketch19.addConstraint(Sketcher.Constraint("DistanceX", 16, 2, -1, 1, 10.5))
sketch19.addConstraint(Sketcher.Constraint("DistanceX", -1, 1, 8, 2, 52.675))
pocket14 = body.newObject("PartDesign::Pocket", "Pocket013")
pocket14.Profile = sketch19
pocket14.Length = 10

# Sketch on XY plane
sketch20 = body.newObject("Sketcher::SketchObject", "Sketch019")
sketch20.AttachmentSupport = (doc.getObject("XY_Plane"), [""])
sketch20.MapMode = "FlatFace"
sketch20.AttachmentOffset = App.Placement(V(0, 0, 4), App.Rotation())
sketch20.addGeometry(Part.LineSegment(V(-19, -45.5, 0), V(-19, -46.5, 0)), False)
sketch20.addGeometry(Part.LineSegment(V(-19, -46.5, 0), V(31.5, -46.5, 0)), False)
sketch20.addGeometry(Part.LineSegment(V(31.5, -46.5, 0), V(31.5, -45.5, 0)), False)
sketch20.addGeometry(Part.LineSegment(V(31.5, -45.5, 0), V(-19, -45.5, 0)), False)
sketch20.addGeometry(Part.LineSegment(V(-75.5, -45.5, 0), V(-75.5, -46.5, 0)), False)
sketch20.addGeometry(Part.LineSegment(V(-75.5, -46.5, 0), V(-34, -46.5, 0)), False)
sketch20.addGeometry(Part.LineSegment(V(-34, -46.5, 0), V(-34, -45.5, 0)), False)
sketch20.addGeometry(Part.LineSegment(V(-34, -45.5, 0), V(-75.5, -45.5, 0)), False)
sketch20.addConstraint(Sketcher.Constraint("Coincident", 0, 2, 1, 1))
sketch20.addConstraint(Sketcher.Constraint("Coincident", 1, 2, 2, 1))
sketch20.addConstraint(Sketcher.Constraint("Coincident", 2, 2, 3, 1))
sketch20.addConstraint(Sketcher.Constraint("Coincident", 3, 2, 0, 1))
sketch20.addConstraint(Sketcher.Constraint("Coincident", 4, 2, 5, 1))
sketch20.addConstraint(Sketcher.Constraint("Coincident", 5, 2, 6, 1))
sketch20.addConstraint(Sketcher.Constraint("Coincident", 6, 2, 7, 1))
sketch20.addConstraint(Sketcher.Constraint("Coincident", 7, 2, 4, 1))
sketch20.addConstraint(Sketcher.Constraint("Vertical", 0))
sketch20.addConstraint(Sketcher.Constraint("Horizontal", 1))
sketch20.addConstraint(Sketcher.Constraint("Vertical", 2))
sketch20.addConstraint(Sketcher.Constraint("Horizontal", 3))
sketch20.addConstraint(Sketcher.Constraint("Vertical", 4))
sketch20.addConstraint(Sketcher.Constraint("Horizontal", 5))
sketch20.addConstraint(Sketcher.Constraint("Vertical", 6))
sketch20.addConstraint(Sketcher.Constraint("Horizontal", 7))
sketch20.addConstraint(Sketcher.Constraint("Horizontal", 1, 2, 4, 2))
sketch20.addConstraint(Sketcher.Constraint("Horizontal", 3, 2, 6, 2))
sketch20.addConstraint(Sketcher.Constraint("DistanceY", 0, 2, 0, 1, 1.0))
sketch20.addConstraint(Sketcher.Constraint("DistanceX", 1, 1, 1, 2, 50.5))
sketch20.addConstraint(Sketcher.Constraint("DistanceX", 5, 1, 5, 2, 41.5))
sketch20.addConstraint(Sketcher.Constraint("DistanceX", 0, 2, -1, 1, 19.0))
sketch20.addConstraint(Sketcher.Constraint("DistanceX", 5, 2, -1, 1, 34.0))
sketch20.addConstraint(Sketcher.Constraint("DistanceY", 0, 2, -1, 1, 46.5))
pad6 = body.newObject("PartDesign::Pad", "Pad005")
pad6.Profile = sketch20
pad6.Length = 4
pad6.Reversed = True

# Sketch on XY plane
sketch21 = body.newObject("Sketcher::SketchObject", "Sketch020")
sketch21.AttachmentSupport = (doc.getObject("XY_Plane"), [""])
sketch21.MapMode = "FlatFace"
sketch21.AttachmentOffset = App.Placement(V(0, 0, 4), App.Rotation())
sketch21.addGeometry(Part.LineSegment(V(-64.75, -45.5, 0), V(-64.75, -50.5, 0)), False)
sketch21.addGeometry(Part.LineSegment(V(-64.75, -50.5, 0), V(-44.645351, -50.5, 0)), False)
sketch21.addGeometry(Part.LineSegment(V(-44.645351, -50.5, 0), V(-44.645351, -45.5, 0)), False)
sketch21.addGeometry(Part.LineSegment(V(-44.645351, -45.5, 0), V(-64.75, -45.5, 0)), False)
sketch21.addConstraint(Sketcher.Constraint("Coincident", 0, 2, 1, 1))
sketch21.addConstraint(Sketcher.Constraint("Coincident", 1, 2, 2, 1))
sketch21.addConstraint(Sketcher.Constraint("Coincident", 2, 2, 3, 1))
sketch21.addConstraint(Sketcher.Constraint("Coincident", 3, 2, 0, 1))
sketch21.addConstraint(Sketcher.Constraint("Vertical", 0))
sketch21.addConstraint(Sketcher.Constraint("Horizontal", 1))
sketch21.addConstraint(Sketcher.Constraint("Vertical", 2))
sketch21.addConstraint(Sketcher.Constraint("Horizontal", 3))
sketch21.addConstraint(Sketcher.Constraint("DistanceY", 0, 2, 0, 1, 5.0))
sketch21.addConstraint(Sketcher.Constraint("DistanceY", 0, 2, -1, 1, 50.5))
sketch21.addConstraint(Sketcher.Constraint("DistanceX", 0, 2, -1, 1, 64.75))
sketch21.addConstraint(Sketcher.Constraint("DistanceX", 1, 1, 1, 2, 20.104649))
pocket15 = body.newObject("PartDesign::Pocket", "Pocket014")
pocket15.Profile = sketch21
pocket15.Length = 5

# Sketch on XY plane
sketch22 = body.newObject("Sketcher::SketchObject", "Sketch021")
sketch22.AttachmentSupport = (doc.getObject("XY_Plane"), [""])
sketch22.MapMode = "FlatFace"
sketch22.AttachmentOffset = App.Placement(V(0, 0, 4), App.Rotation())
sketch22.addGeometry(Part.Circle(V(73, -78.562158, 0), V(0, 0, 1), 2), False)
sketch22.addConstraint(Sketcher.Constraint("Diameter", 0, 4.0))
sketch22.addConstraint(Sketcher.Constraint("DistanceX", -1, 1, 0, 3, 73.0))
sketch22.addConstraint(Sketcher.Constraint("DistanceY", 0, 3, -1, 1, 78.562158))
pocket16 = body.newObject("PartDesign::Pocket", "Pocket015")
pocket16.Profile = sketch22
pocket16.Length = 5

# Sketch on XY plane
sketch23 = body.newObject("Sketcher::SketchObject", "Sketch022")
sketch23.AttachmentSupport = (doc.getObject("XY_Plane"), [""])
sketch23.MapMode = "FlatFace"
sketch23.AttachmentOffset = App.Placement(V(0, 0, 4), App.Rotation())
sketch23.addGeometry(Part.Circle(V(73, -78.562158, 0), V(0, 0, 1), 4), False)
sketch23.addGeometry(Part.Circle(V(73, -78.562158, 0), V(0, 0, 1), 2), False)
sketch23.addConstraint(Sketcher.Constraint("Coincident", 1, 3, 0, 3))
sketch23.addConstraint(Sketcher.Constraint("Diameter", 0, 8.0))
sketch23.addConstraint(Sketcher.Constraint("Diameter", 1, 4.0))
sketch23.addConstraint(Sketcher.Constraint("DistanceX", -1, 1, 0, 3, 73.0))
sketch23.addConstraint(Sketcher.Constraint("DistanceY", 0, 3, -1, 1, 78.562158))
pad7 = body.newObject("PartDesign::Pad", "Pad006")
pad7.Profile = sketch23
pad7.Length = 4
pad7.Reversed = True

# Sketch on XY plane
sketch24 = body.newObject("Sketcher::SketchObject", "Sketch023")
sketch24.AttachmentSupport = (doc.getObject("XY_Plane"), [""])
sketch24.MapMode = "FlatFace"
sketch24.AttachmentOffset = App.Placement(V(0, 0, 4), App.Rotation())
sketch24.addGeometry(Part.Circle(V(26.578518, 58.5, 0), V(0, 0, 1), 2), False)
sketch24.addConstraint(Sketcher.Constraint("Diameter", 0, 4.0))
sketch24.addConstraint(Sketcher.Constraint("DistanceY", -1, 1, 0, 3, 58.5))
sketch24.addConstraint(Sketcher.Constraint("DistanceX", -1, 1, 0, 3, 26.578518))
pocket17 = body.newObject("PartDesign::Pocket", "Pocket016")
pocket17.Profile = sketch24
pocket17.Length = 10

doc.recompute()
